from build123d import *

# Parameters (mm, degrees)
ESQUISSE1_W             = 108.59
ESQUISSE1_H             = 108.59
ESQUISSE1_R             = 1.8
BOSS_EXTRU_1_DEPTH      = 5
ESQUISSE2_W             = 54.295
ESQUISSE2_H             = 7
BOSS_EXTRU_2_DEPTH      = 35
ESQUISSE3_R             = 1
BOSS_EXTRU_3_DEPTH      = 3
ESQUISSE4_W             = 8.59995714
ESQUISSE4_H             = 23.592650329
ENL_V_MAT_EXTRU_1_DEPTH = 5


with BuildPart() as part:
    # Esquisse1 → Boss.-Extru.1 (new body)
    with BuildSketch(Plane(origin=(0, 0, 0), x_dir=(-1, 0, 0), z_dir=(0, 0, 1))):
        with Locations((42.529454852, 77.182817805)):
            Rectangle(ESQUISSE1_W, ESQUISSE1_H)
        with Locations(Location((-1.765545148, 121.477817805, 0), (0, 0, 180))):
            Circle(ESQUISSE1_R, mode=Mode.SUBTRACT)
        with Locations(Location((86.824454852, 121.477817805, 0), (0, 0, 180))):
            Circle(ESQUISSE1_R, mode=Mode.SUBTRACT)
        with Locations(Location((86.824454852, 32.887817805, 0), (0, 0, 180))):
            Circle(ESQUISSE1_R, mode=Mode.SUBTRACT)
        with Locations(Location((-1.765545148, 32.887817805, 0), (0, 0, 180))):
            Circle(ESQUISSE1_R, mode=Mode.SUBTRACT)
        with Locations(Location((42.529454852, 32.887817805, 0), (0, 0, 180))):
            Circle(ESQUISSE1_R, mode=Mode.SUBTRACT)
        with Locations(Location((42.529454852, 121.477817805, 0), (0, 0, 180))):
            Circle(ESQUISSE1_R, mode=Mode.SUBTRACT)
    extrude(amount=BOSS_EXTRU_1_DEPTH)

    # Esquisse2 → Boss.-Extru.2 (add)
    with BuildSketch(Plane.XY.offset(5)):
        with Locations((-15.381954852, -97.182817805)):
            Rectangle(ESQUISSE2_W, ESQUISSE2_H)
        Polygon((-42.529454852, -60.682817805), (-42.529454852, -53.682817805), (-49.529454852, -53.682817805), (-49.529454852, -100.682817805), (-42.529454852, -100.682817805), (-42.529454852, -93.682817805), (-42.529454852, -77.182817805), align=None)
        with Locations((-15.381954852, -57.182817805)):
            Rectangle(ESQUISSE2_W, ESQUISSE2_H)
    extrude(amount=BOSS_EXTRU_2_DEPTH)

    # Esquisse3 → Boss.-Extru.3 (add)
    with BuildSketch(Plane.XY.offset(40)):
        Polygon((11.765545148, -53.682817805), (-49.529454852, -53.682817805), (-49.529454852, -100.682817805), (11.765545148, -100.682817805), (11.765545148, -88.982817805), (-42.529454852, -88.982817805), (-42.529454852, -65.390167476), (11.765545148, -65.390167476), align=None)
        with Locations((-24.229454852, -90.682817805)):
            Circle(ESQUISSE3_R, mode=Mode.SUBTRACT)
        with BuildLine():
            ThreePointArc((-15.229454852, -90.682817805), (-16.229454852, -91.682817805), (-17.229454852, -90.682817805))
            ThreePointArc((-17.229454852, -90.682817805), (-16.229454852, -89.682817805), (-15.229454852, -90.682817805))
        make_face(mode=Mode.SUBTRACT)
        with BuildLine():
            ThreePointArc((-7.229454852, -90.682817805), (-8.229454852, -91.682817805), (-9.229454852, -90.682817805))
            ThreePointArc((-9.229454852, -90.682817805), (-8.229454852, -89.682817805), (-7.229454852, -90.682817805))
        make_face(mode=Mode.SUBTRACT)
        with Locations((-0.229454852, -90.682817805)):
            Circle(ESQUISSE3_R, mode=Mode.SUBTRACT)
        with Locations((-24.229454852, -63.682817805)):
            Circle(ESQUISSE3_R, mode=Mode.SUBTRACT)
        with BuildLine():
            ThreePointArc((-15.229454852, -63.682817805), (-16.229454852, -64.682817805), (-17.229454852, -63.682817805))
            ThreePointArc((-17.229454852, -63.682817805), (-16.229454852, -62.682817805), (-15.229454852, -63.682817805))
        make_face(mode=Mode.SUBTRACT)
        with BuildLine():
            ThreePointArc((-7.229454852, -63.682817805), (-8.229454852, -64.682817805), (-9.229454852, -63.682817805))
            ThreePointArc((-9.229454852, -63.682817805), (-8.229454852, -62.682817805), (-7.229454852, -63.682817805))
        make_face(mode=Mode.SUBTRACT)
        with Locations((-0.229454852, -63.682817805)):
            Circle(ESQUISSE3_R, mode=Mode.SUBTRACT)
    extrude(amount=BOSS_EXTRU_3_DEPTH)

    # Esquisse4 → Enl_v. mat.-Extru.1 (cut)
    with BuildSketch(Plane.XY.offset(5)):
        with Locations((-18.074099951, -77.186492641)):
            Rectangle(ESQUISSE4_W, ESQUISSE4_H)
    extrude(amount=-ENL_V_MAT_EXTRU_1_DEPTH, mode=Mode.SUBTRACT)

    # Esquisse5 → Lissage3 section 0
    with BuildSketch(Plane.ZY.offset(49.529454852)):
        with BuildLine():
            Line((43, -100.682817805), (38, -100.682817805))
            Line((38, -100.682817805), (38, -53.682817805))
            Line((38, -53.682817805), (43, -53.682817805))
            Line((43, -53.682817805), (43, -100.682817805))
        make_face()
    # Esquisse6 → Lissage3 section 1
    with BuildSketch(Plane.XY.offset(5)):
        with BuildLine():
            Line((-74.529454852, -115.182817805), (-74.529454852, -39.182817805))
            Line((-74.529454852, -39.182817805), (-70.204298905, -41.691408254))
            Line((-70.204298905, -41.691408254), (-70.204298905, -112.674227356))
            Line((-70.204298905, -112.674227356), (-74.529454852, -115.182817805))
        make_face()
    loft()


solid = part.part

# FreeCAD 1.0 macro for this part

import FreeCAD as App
import Part
import Sketcher
from FreeCAD import Vector


def add_polygon(sketch, points):
    """Adds a closed chain of lines whose ends are joined by coincident constraints."""
    first, n = sketch.GeometryCount, len(points)
    for a, b in zip(points, points[1:] + points[:1]):
        sketch.addGeometry(Part.LineSegment(App.Vector(*a, 0), App.Vector(*b, 0)), False)
    for i in range(n):
        sketch.addConstraint(Sketcher.Constraint("Coincident", first + i, 2, first + (i + 1) % n, 1))

doc = App.newDocument("Part")
params = doc.addObject("Spreadsheet::Sheet", "Params")
for row, (alias, value) in enumerate([
    ("sketch1_diameter", "3.6 mm"),
    ("sketch1_width", "108.59 mm"),
    ("pad1_length", "5 mm"),
    ("sketch2_height", "7 mm"),
    ("sketch2_height2", "33 mm"),
    ("pad2_length", "35 mm"),
    ("sketch3_diameter", "2 mm"),
    ("sketch3_height", "47 mm"),
    ("sketch3_height2", "11.7 mm"),
    ("pad3_length", "3 mm"),
    ("pocket1_length", "5 mm"),
    ("sketch5_width", "47 mm"),
    ("sketch5_height", "5 mm"),
    ("sketch6_height", "76 mm"),
    ("sketch6_length", "5 mm"),
], start=1):
    params.set(f"A{row}", alias)
    params.set(f"B{row}", "=" + value)
    params.setAlias(f"B{row}", alias)

body = doc.addObject("PartDesign::Body", "Body")

sketch1 = body.newObject("Sketcher::SketchObject", "Sketch")
sketch1.AttachmentSupport = (doc.getObject("XY_Plane"), [""])
sketch1.MapMode = "FlatFace"
add_polygon(sketch1, [(11.8, -131.5), (11.8, -22.9), (-96.8, -22.9), (-96.8, -131.5)])
sketch1.addGeometry(Part.Circle(Vector(1.8, -32.9, 0), Vector(0, 0, 1), 1.8), False)
sketch1.addGeometry(Part.Circle(Vector(-42.5, -32.9, 0), Vector(0, 0, 1), 1.8), False)
sketch1.addGeometry(Part.Circle(Vector(-86.8, -32.9, 0), Vector(0, 0, 1), 1.8), False)
sketch1.addGeometry(Part.Circle(Vector(1.8, -121.5, 0), Vector(0, 0, 1), 1.8), False)
sketch1.addGeometry(Part.Circle(Vector(-42.5, -121.5, 0), Vector(0, 0, 1), 1.8), False)
sketch1.addGeometry(Part.Circle(Vector(-86.8, -121.5, 0), Vector(0, 0, 1), 1.8), False)
sketch1.addConstraint([
    Sketcher.Constraint("Vertical", 0),
    Sketcher.Constraint("Horizontal", 1),
    Sketcher.Constraint("Vertical", 2),
    Sketcher.Constraint("Horizontal", 3),
    Sketcher.Constraint("Equal", 4, 5),
    Sketcher.Constraint("Equal", 5, 6),
    Sketcher.Constraint("Equal", 6, 7),
    Sketcher.Constraint("Equal", 7, 8),
    Sketcher.Constraint("Equal", 8, 9),
    Sketcher.Constraint("Horizontal", 4, 3, 5, 3),
    Sketcher.Constraint("Horizontal", 5, 3, 6, 3),
    Sketcher.Constraint("Horizontal", 7, 3, 8, 3),
    Sketcher.Constraint("Horizontal", 8, 3, 9, 3),
    Sketcher.Constraint("Vertical", 4, 3, 7, 3),
    Sketcher.Constraint("Vertical", 5, 3, 8, 3),
    Sketcher.Constraint("Vertical", 6, 3, 9, 3),
    Sketcher.Constraint("Equal", 3, 0),
    Sketcher.Constraint("Diameter", 4, 3.6),
    Sketcher.Constraint("DistanceX", 4, 3, 0, 2, 10.0),
    Sketcher.Constraint("DistanceY", 4, 3, 0, 2, 10.0),
    Sketcher.Constraint("DistanceX", 1, 2, 6, 3, 10.0),
    Sketcher.Constraint("DistanceY", 2, 2, 9, 3, 10.0),
    Sketcher.Constraint("DistanceX", 1, 2, 1, 1, 108.59),
    Sketcher.Constraint("DistanceX", 5, 3, 4, 3, 44.295),
    Sketcher.Constraint("DistanceX", -1, 1, 4, 3, 1.765545),
    Sketcher.Constraint("DistanceY", 4, 3, -1, 1, 32.887818),
])
sketch1.setExpression("Constraints[21]", "Params.sketch1_diameter")
sketch1.setExpression("Constraints[26]", "Params.sketch1_width")
pad1 = body.newObject("PartDesign::Pad", "Pad")
pad1.Profile = sketch1
pad1.setExpression("Length", "Params.pad1_length")

sketch2 = body.newObject("Sketcher::SketchObject", "Sketch001")
sketch2.AttachmentSupport = (doc.getObject("XY_Plane"), [""])
sketch2.MapMode = "FlatFace"
sketch2.AttachmentOffset = App.Placement(Vector(0, 0, 5), App.Rotation())
add_polygon(sketch2, [(12, -101), (12, -94), (-43, -94), (-43, -61), (12, -61), (12, -54), (-50, -54), (-50, -101)])
sketch2.addConstraint([
    Sketcher.Constraint("Vertical", 0),
    Sketcher.Constraint("Horizontal", 1),
    Sketcher.Constraint("Vertical", 2),
    Sketcher.Constraint("Horizontal", 3),
    Sketcher.Constraint("Vertical", 4),
    Sketcher.Constraint("Horizontal", 5),
    Sketcher.Constraint("Vertical", 6),
    Sketcher.Constraint("Horizontal", 7),
    Sketcher.Constraint("Vertical", 0, 2, 3, 2),
    Sketcher.Constraint("Equal", 0, 4),
    Sketcher.Constraint("DistanceY", 0, 1, 0, 2, 7.0),
    Sketcher.Constraint("DistanceY", 2, 1, 2, 2, 33.0),
    Sketcher.Constraint("DistanceX", 5, 2, 2, 2, 7.0),
    Sketcher.Constraint("DistanceX", 1, 2, 1, 1, 54.295),
    Sketcher.Constraint("DistanceX", -1, 1, 0, 2, 11.765545),
    Sketcher.Constraint("DistanceY", 0, 2, -1, 1, 93.682818),
])
sketch2.setExpression("Constraints[18]", "Params.sketch2_height")
sketch2.setExpression("Constraints[19]", "Params.sketch2_height2")
pad2 = body.newObject("PartDesign::Pad", "Pad001")
pad2.Profile = sketch2
pad2.setExpression("Length", "Params.pad2_length")

sketch3 = body.newObject("Sketcher::SketchObject", "Sketch002")
sketch3.AttachmentSupport = (doc.getObject("XY_Plane"), [""])
sketch3.MapMode = "FlatFace"
sketch3.AttachmentOffset = App.Placement(Vector(0, 0, 40), App.Rotation())
add_polygon(sketch3, [(11.8, -53.7), (-49.5, -53.7), (-49.5, -100.7), (11.8, -100.7), (11.8, -89), (-42.5, -89), (-42.5, -65.4), (11.8, -65.4)])
sketch3.addGeometry(Part.Circle(Vector(-24.2, -90.7, 0), Vector(0, 0, 1), 1), False)
sketch3.addGeometry(Part.Circle(Vector(-16.2, -90.7, 0), Vector(0, 0, 1), 1), False)
sketch3.addGeometry(Part.Circle(Vector(-8.2, -90.7, 0), Vector(0, 0, 1), 1), False)
sketch3.addGeometry(Part.Circle(Vector(-0.2, -90.7, 0), Vector(0, 0, 1), 1), False)
sketch3.addGeometry(Part.Circle(Vector(-24.2, -63.7, 0), Vector(0, 0, 1), 1), False)
sketch3.addGeometry(Part.Circle(Vector(-16.2, -63.7, 0), Vector(0, 0, 1), 1), False)
sketch3.addGeometry(Part.Circle(Vector(-8.2, -63.7, 0), Vector(0, 0, 1), 1), False)
sketch3.addGeometry(Part.Circle(Vector(-0.2, -63.7, 0), Vector(0, 0, 1), 1), False)
sketch3.addConstraint([
    Sketcher.Constraint("Horizontal", 0),
    Sketcher.Constraint("Vertical", 1),
    Sketcher.Constraint("Horizontal", 2),
    Sketcher.Constraint("Vertical", 3),
    Sketcher.Constraint("Horizontal", 4),
    Sketcher.Constraint("Vertical", 5),
    Sketcher.Constraint("Horizontal", 6),
    Sketcher.Constraint("Vertical", 7),
    Sketcher.Constraint("Equal", 8, 9),
    Sketcher.Constraint("Equal", 9, 10),
    Sketcher.Constraint("Equal", 10, 11),
    Sketcher.Constraint("Equal", 11, 12),
    Sketcher.Constraint("Equal", 12, 13),
    Sketcher.Constraint("Equal", 13, 14),
    Sketcher.Constraint("Equal", 14, 15),
    Sketcher.Constraint("Horizontal", 8, 3, 9, 3),
    Sketcher.Constraint("Horizontal", 9, 3, 10, 3),
    Sketcher.Constraint("Horizontal", 10, 3, 11, 3),
    Sketcher.Constraint("Horizontal", 12, 3, 13, 3),
    Sketcher.Constraint("Horizontal", 13, 3, 14, 3),
    Sketcher.Constraint("Horizontal", 14, 3, 15, 3),
    Sketcher.Constraint("Vertical", 8, 3, 12, 3),
    Sketcher.Constraint("Vertical", 9, 3, 13, 3),
    Sketcher.Constraint("Vertical", 10, 3, 14, 3),
    Sketcher.Constraint("Vertical", 11, 3, 15, 3),
    Sketcher.Constraint("Vertical", 3, 2, 6, 2),
    Sketcher.Constraint("Diameter", 8, 2.0),
    Sketcher.Constraint("DistanceY", 1, 2, 1, 1, 47.0),
    Sketcher.Constraint("DistanceY", 3, 1, 3, 2, 11.7),
    Sketcher.Constraint("DistanceX", 8, 3, 9, 3, 8.0),
    Sketcher.Constraint("DistanceX", 9, 3, 10, 3, 8.0),
    Sketcher.Constraint("DistanceX", 10, 3, 11, 3, 8.0),
    Sketcher.Constraint("DistanceY", 8, 3, 12, 3, 27.0),
    Sketcher.Constraint("DistanceY", 12, 3, 0, 2, 10.0),
    Sketcher.Constraint("DistanceX", 1, 2, 4, 2, 7.0),
    Sketcher.Constraint("DistanceX", 0, 2, 12, 3, 25.3),
    Sketcher.Constraint("DistanceX", 0, 2, 0, 1, 61.295),
    Sketcher.Constraint("DistanceY", 5, 1, 5, 2, 23.59265),
    Sketcher.Constraint("DistanceX", 8, 3, -1, 1, 24.229455),
    Sketcher.Constraint("DistanceY", 8, 3, -1, 1, 90.682818),
])
sketch3.setExpression("Constraints[34]", "Params.sketch3_diameter")
sketch3.setExpression("Constraints[35]", "Params.sketch3_height")
sketch3.setExpression("Constraints[36]", "Params.sketch3_height2")
pad3 = body.newObject("PartDesign::Pad", "Pad002")
pad3.Profile = sketch3
pad3.setExpression("Length", "Params.pad3_length")

sketch4 = body.newObject("Sketcher::SketchObject", "Sketch003")
sketch4.AttachmentSupport = (doc.getObject("XY_Plane"), [""])
sketch4.MapMode = "FlatFace"
sketch4.AttachmentOffset = App.Placement(Vector(0, 0, 5), App.Rotation())
add_polygon(sketch4, [(-22, -65), (-22, -89), (-14, -89), (-14, -65)])
sketch4.addConstraint([
    Sketcher.Constraint("Vertical", 0),
    Sketcher.Constraint("Horizontal", 1),
    Sketcher.Constraint("Vertical", 2),
    Sketcher.Constraint("Horizontal", 3),
    Sketcher.Constraint("DistanceY", 0, 2, 0, 1, 23.59265),
    Sketcher.Constraint("DistanceX", 1, 1, 1, 2, 8.599957),
    Sketcher.Constraint("DistanceX", 0, 2, -1, 1, 22.374079),
    Sketcher.Constraint("DistanceY", 0, 2, -1, 1, 88.982818),
])
pocket1 = body.newObject("PartDesign::Pocket", "Pocket")
pocket1.Profile = sketch4
pocket1.setExpression("Length", "Params.pocket1_length")

sketch5 = body.newObject("Sketcher::SketchObject", "Sketch004")
sketch5.AttachmentSupport = (doc.getObject("YZ_Plane"), [""])
sketch5.MapMode = "FlatFace"
sketch5.AttachmentOffset = App.Placement(Vector(0, 0, -49.529455), App.Rotation())
add_polygon(sketch5, [(-101, 38), (-101, 43), (-54, 43), (-54, 38)])
sketch5.addConstraint([
    Sketcher.Constraint("Vertical", 0),
    Sketcher.Constraint("Horizontal", 1),
    Sketcher.Constraint("Vertical", 2),
    Sketcher.Constraint("Horizontal", 3),
    Sketcher.Constraint("DistanceX", 1, 1, 1, 2, 47.0),
    Sketcher.Constraint("DistanceY", 0, 1, 0, 2, 5.0),
    Sketcher.Constraint("DistanceY", -1, 1, 0, 2, 43.0),
    Sketcher.Constraint("DistanceX", 0, 2, -1, 1, 100.682818),
])
sketch5.setExpression("Constraints[8]", "Params.sketch5_width")
sketch5.setExpression("Constraints[9]", "Params.sketch5_height")

sketch6 = body.newObject("Sketcher::SketchObject", "Sketch005")
sketch6.AttachmentSupport = (doc.getObject("XY_Plane"), [""])
sketch6.MapMode = "FlatFace"
sketch6.AttachmentOffset = App.Placement(Vector(0, 0, 5), App.Rotation())
add_polygon(sketch6, [(-75, -39), (-75, -115), (-70, -113), (-70, -42)])
sketch6.addConstraint([
    Sketcher.Constraint("Vertical", 0),
    Sketcher.Constraint("Vertical", 2),
    Sketcher.Constraint("Equal", 1, 3),
    Sketcher.Constraint("DistanceY", 0, 2, 0, 1, 76.0),
    Sketcher.Constraint("Distance", 1, 5.0),
    Sketcher.Constraint("DistanceY", 2, 1, 2, 2, 70.982819),
    Sketcher.Constraint("DistanceX", 1, 2, -1, 1, 70.204299),
    Sketcher.Constraint("DistanceY", 2, 2, -1, 1, 41.691408),
])
sketch6.setExpression("Constraints[7]", "Params.sketch6_height")
sketch6.setExpression("Constraints[8]", "Params.sketch6_length")

additiveloft = body.newObject("PartDesign::AdditiveLoft", "AdditiveLoft")
additiveloft.Profile = sketch5
additiveloft.Sections = [sketch6]

doc.recompute()
